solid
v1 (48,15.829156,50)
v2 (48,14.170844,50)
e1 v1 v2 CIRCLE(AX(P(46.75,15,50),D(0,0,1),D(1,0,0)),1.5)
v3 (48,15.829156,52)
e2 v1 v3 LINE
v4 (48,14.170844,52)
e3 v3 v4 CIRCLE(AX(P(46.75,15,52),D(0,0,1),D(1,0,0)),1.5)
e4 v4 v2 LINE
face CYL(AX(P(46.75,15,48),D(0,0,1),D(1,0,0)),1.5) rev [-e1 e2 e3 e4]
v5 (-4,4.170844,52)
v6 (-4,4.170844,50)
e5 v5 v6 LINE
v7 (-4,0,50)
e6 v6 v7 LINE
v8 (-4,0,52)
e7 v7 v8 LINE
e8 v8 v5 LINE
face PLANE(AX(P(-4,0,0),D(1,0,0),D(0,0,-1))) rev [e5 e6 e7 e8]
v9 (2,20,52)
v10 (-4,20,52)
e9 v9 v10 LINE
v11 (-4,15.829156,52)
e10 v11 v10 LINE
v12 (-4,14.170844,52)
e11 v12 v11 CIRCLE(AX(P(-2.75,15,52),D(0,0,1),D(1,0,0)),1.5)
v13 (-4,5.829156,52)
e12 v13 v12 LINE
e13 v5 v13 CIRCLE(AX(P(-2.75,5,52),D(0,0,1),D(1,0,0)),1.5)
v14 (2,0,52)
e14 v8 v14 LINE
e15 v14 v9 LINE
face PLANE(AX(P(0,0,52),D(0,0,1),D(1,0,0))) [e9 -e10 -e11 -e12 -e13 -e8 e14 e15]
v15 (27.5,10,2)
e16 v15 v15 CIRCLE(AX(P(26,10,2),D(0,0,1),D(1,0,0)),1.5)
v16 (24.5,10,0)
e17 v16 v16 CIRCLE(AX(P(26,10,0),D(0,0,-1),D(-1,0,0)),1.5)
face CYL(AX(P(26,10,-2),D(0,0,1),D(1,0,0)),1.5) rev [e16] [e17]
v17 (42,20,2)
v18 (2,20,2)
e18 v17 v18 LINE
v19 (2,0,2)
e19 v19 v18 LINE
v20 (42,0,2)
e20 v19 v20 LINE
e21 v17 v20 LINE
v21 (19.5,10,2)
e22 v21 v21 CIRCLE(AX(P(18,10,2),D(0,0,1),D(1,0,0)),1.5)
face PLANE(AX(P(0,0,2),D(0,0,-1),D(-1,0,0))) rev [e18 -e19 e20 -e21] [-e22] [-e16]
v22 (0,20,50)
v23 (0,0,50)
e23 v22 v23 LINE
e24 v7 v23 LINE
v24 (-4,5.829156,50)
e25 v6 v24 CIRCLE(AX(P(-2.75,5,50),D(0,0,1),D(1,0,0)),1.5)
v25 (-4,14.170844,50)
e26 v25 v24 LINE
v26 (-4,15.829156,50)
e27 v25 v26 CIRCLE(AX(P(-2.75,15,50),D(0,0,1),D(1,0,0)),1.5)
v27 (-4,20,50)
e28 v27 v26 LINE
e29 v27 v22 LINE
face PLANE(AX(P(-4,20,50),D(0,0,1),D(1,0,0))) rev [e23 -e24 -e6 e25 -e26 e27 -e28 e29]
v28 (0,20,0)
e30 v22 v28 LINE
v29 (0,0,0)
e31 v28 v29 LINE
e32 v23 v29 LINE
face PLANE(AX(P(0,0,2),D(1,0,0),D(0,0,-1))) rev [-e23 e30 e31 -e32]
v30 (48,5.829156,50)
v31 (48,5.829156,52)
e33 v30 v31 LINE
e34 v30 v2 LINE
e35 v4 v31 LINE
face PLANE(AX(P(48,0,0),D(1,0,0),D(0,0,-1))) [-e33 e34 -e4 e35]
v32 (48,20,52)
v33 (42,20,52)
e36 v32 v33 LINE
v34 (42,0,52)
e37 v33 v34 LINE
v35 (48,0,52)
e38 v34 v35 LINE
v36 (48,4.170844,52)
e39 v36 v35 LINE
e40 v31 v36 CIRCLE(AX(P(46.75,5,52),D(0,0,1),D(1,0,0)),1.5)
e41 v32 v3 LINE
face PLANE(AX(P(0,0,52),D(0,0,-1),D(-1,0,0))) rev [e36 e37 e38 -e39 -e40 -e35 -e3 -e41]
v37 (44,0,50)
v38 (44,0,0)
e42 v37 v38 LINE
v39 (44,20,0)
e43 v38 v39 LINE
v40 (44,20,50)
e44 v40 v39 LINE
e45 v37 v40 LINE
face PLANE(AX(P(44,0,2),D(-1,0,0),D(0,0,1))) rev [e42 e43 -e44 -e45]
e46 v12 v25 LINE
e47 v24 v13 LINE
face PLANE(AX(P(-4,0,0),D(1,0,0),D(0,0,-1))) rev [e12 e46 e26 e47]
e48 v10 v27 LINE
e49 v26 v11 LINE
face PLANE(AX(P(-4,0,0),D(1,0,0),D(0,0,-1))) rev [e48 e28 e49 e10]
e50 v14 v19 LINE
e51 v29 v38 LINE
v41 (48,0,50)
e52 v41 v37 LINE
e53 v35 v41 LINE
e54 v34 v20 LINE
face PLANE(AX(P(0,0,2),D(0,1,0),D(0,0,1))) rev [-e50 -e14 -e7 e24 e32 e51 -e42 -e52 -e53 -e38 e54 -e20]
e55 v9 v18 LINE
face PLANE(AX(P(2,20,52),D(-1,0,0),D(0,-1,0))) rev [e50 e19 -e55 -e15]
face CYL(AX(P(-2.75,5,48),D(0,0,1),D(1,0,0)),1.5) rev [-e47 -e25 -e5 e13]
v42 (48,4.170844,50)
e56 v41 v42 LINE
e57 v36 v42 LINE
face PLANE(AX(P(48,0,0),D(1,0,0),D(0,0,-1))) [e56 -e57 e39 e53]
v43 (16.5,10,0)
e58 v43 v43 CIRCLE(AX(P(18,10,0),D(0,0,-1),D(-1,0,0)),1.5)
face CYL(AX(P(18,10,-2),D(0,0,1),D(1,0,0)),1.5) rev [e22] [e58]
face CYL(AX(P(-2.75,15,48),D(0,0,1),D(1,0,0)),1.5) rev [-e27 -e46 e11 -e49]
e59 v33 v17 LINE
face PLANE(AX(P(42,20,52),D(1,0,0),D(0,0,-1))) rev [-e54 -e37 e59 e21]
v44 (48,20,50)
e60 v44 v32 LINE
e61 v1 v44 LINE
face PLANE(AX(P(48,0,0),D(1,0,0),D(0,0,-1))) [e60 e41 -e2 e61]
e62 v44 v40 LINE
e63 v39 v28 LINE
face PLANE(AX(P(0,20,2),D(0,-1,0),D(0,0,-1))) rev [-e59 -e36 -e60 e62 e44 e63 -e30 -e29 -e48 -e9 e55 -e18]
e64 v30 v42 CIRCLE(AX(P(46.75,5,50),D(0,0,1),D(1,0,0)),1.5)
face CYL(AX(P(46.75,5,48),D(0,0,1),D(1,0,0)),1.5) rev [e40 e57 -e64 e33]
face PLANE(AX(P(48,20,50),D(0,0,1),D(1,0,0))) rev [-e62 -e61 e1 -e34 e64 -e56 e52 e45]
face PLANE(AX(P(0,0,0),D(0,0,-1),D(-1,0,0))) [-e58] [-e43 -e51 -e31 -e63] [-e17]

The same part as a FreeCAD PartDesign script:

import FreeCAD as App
import Part
import Sketcher

V = App.Vector


def add_polygon(sketch, points):
    """Adds a closed chain of lines whose ends are joined by coincident constraints."""
    first, n = sketch.GeometryCount, len(points)
    for a, b in zip(points, points[1:] + points[:1]):
        sketch.addGeometry(Part.LineSegment(App.Vector(*a, 0), App.Vector(*b, 0)), False)
    for i in range(n):
        sketch.addConstraint(Sketcher.Constraint("Coincident", first + i, 2, first + (i + 1) % n, 1))

doc = App.newDocument("Part")
body = doc.addObject("PartDesign::Body", "Body")

# Sketch on XY plane
sketch1 = doc.addObject("Sketcher::SketchObject", "Sketch")
body.addObject(sketch1)
sketch1.AttachmentSupport = (doc.XY_Plane, [""])
sketch1.MapMode = "FlatFace"
add_polygon(sketch1, [(0, 20), (0, 0), (44, 0), (44, 20)])  # lines 0-3
sketch1.addConstraint(Sketcher.Constraint("Vertical", 0))
sketch1.addConstraint(Sketcher.Constraint("Horizontal", 1))
sketch1.addConstraint(Sketcher.Constraint("Vertical", 2))
sketch1.addConstraint(Sketcher.Constraint("Horizontal", 3))
sketch1.addConstraint(Sketcher.Constraint("Coincident", 0, 2, -1, 1))
sketch1.addConstraint(Sketcher.Constraint("DistanceX", 1, 1, 1, 2, 44.0))
sketch1.addConstraint(Sketcher.Constraint("DistanceY", 0, 2, 0, 1, 20.0))
pad1 = doc.addObject("PartDesign::Pad", "Pad")
body.addObject(pad1)
pad1.Profile = sketch1
pad1.Length = 2

# Sketch on XY plane
sketch2 = doc.addObject("Sketcher::SketchObject", "Sketch001")
body.addObject(sketch2)
sketch2.AttachmentSupport = (doc.XY_Plane, [""])
sketch2.MapMode = "FlatFace"
sketch2.AttachmentOffset = App.Placement(V(0, 0, 2), App.Rotation())
add_polygon(sketch2, [(0, 20), (0, 0), (2, 0), (2, 20)])  # lines 0-3
add_polygon(sketch2, [(42, 20), (42, 0), (44, 0), (44, 20)])  # lines 4-7
sketch2.addConstraint(Sketcher.Constraint("Vertical", 0))
sketch2.addConstraint(Sketcher.Constraint("Horizontal", 1))
sketch2.addConstraint(Sketcher.Constraint("Vertical", 2))
sketch2.addConstraint(Sketcher.Constraint("Horizontal", 3))
sketch2.addConstraint(Sketcher.Constraint("Vertical", 4))
sketch2.addConstraint(Sketcher.Constraint("Horizontal", 5))
sketch2.addConstraint(Sketcher.Constraint("Vertical", 6))
sketch2.addConstraint(Sketcher.Constraint("Horizontal", 7))
sketch2.addConstraint(Sketcher.Constraint("Coincident", 0, 2, -1, 1))
sketch2.addConstraint(Sketcher.Constraint("PointOnObject", 4, 2, -1))
sketch2.addConstraint(Sketcher.Constraint("Horizontal", 3, 2, 6, 2))
sketch2.addConstraint(Sketcher.Constraint("Equal", 3, 5))
sketch2.addConstraint(Sketcher.Constraint("DistanceX", 1, 1, 1, 2, 2.0))
sketch2.addConstraint(Sketcher.Constraint("DistanceY", 0, 2, 0, 1, 20.0))
sketch2.addConstraint(Sketcher.Constraint("DistanceX", -1, 1, 4, 2, 42.0))
pad2 = doc.addObject("PartDesign::Pad", "Pad001")
body.addObject(pad2)
pad2.Profile = sketch2
pad2.Length = 50

# Sketch on YZ plane
sketch3 = doc.addObject("Sketcher::SketchObject", "Sketch002")
body.addObject(sketch3)
sketch3.AttachmentSupport = (doc.YZ_Plane, [""])
sketch3.MapMode = "FlatFace"
add_polygon(sketch3, [(20, 50), (0, 50), (0, 52), (20, 52)])  # lines 0-3
sketch3.addConstraint(Sketcher.Constraint("Horizontal", 0))
sketch3.addConstraint(Sketcher.Constraint("Vertical", 1))
sketch3.addConstraint(Sketcher.Constraint("Horizontal", 2))
sketch3.addConstraint(Sketcher.Constraint("Vertical", 3))
sketch3.addConstraint(Sketcher.Constraint("PointOnObject", 0, 2, -2))
sketch3.addConstraint(Sketcher.Constraint("DistanceX", 0, 2, 0, 1, 20.0))
sketch3.addConstraint(Sketcher.Constraint("DistanceY", 1, 1, 1, 2, 2.0))
sketch3.addConstraint(Sketcher.Constraint("DistanceY", -1, 1, 0, 2, 50.0))
pad3 = doc.addObject("PartDesign::Pad", "Pad002")
body.addObject(pad3)
pad3.Profile = sketch3
pad3.Length = 4
pad3.Reversed = True

# Sketch on YZ plane
sketch4 = doc.addObject("Sketcher::SketchObject", "Sketch003")
body.addObject(sketch4)
sketch4.AttachmentSupport = (doc.YZ_Plane, [""])
sketch4.MapMode = "FlatFace"
sketch4.AttachmentOffset = App.Placement(V(0, 0, 44), App.Rotation())
add_polygon(sketch4, [(20, 52), (0, 52), (0, 50), (20, 50)])  # lines 0-3
sketch4.addConstraint(Sketcher.Constraint("Horizontal", 0))
sketch4.addConstraint(Sketcher.Constraint("Vertical", 1))
sketch4.addConstraint(Sketcher.Constraint("Horizontal", 2))
sketch4.addConstraint(Sketcher.Constraint("Vertical", 3))
sketch4.addConstraint(Sketcher.Constraint("PointOnObject", 0, 2, -2))
sketch4.addConstraint(Sketcher.Constraint("DistanceX", 0, 2, 0, 1, 20.0))
sketch4.addConstraint(Sketcher.Constraint("DistanceY", 1, 2, 1, 1, 2.0))
sketch4.addConstraint(Sketcher.Constraint("DistanceY", -1, 1, 0, 2, 52.0))
pad4 = doc.addObject("PartDesign::Pad", "Pad003")
body.addObject(pad4)
pad4.Profile = sketch4
pad4.Length = 4

# Sketch on XY plane
sketch5 = doc.addObject("Sketcher::SketchObject", "Sketch004")
body.addObject(sketch5)
sketch5.AttachmentSupport = (doc.XY_Plane, [""])
sketch5.MapMode = "FlatFace"
sketch5.AttachmentOffset = App.Placement(V(0, 0, 2), App.Rotation())
sketch5.addGeometry(Part.Circle(V(18, 10, 0), V(0, 0, 1), 1.5), False)
sketch5.addGeometry(Part.Circle(V(26, 10, 0), V(0, 0, 1), 1.5), False)
sketch5.addConstraint(Sketcher.Constraint("Equal", 0, 1))
sketch5.addConstraint(Sketcher.Constraint("Horizontal", 0, 3, 1, 3))
sketch5.addConstraint(Sketcher.Constraint("Diameter", 0, 3.0))
sketch5.addConstraint(Sketcher.Constraint("DistanceX", -1, 1, 0, 3, 18.0))
sketch5.addConstraint(Sketcher.Constraint("DistanceY", -1, 1, 0, 3, 10.0))
sketch5.addConstraint(Sketcher.Constraint("DistanceX", -1, 1, 1, 3, 26.0))
pocket1 = doc.addObject("PartDesign::Pocket", "Pocket")
body.addObject(pocket1)
pocket1.Profile = sketch5
pocket1.Length = 4

# Sketch on XY plane
sketch6 = doc.addObject("Sketcher::SketchObject", "Sketch005")
body.addObject(sketch6)
sketch6.AttachmentSupport = (doc.XY_Plane, [""])
sketch6.MapMode = "FlatFace"
sketch6.AttachmentOffset = App.Placement(V(0, 0, 52), App.Rotation())
sketch6.addGeometry(Part.Circle(V(46.8, 15, 0), V(0, 0, 1), 1.5), False)
sketch6.addGeometry(Part.Circle(V(46.8, 5, 0), V(0, 0, 1), 1.5), False)
sketch6.addGeometry(Part.Circle(V(-2.8, 15, 0), V(0, 0, 1), 1.5), False)
sketch6.addGeometry(Part.Circle(V(-2.8, 5, 0), V(0, 0, 1), 1.5), False)
sketch6.addConstraint(Sketcher.Constraint("Equal", 0, 1))
sketch6.addConstraint(Sketcher.Constraint("Equal", 1, 2))
sketch6.addConstraint(Sketcher.Constraint("Equal", 2, 3))
sketch6.addConstraint(Sketcher.Constraint("Horizontal", 0, 3, 2, 3))
sketch6.addConstraint(Sketcher.Constraint("Horizontal", 1, 3, 3, 3))
sketch6.addConstraint(Sketcher.Constraint("Vertical", 0, 3, 1, 3))
sketch6.addConstraint(Sketcher.Constraint("Vertical", 2, 3, 3, 3))
sketch6.addConstraint(Sketcher.Constraint("Diameter", 0, 3.0))
sketch6.addConstraint(Sketcher.Constraint("DistanceY", -1, 1, 0, 3, 15.0))
sketch6.addConstraint(Sketcher.Constraint("DistanceY", -1, 1, 1, 3, 5.0))
sketch6.addConstraint(Sketcher.Constraint("DistanceX", 2, 3, 0, 3, 49.5))
sketch6.addConstraint(Sketcher.Constraint("DistanceX", -1, 1, 0, 3, 46.75))
pocket2 = doc.addObject("PartDesign::Pocket", "Pocket001")
body.addObject(pocket2)
pocket2.Profile = sketch6
pocket2.Length = 4

doc.recompute()
